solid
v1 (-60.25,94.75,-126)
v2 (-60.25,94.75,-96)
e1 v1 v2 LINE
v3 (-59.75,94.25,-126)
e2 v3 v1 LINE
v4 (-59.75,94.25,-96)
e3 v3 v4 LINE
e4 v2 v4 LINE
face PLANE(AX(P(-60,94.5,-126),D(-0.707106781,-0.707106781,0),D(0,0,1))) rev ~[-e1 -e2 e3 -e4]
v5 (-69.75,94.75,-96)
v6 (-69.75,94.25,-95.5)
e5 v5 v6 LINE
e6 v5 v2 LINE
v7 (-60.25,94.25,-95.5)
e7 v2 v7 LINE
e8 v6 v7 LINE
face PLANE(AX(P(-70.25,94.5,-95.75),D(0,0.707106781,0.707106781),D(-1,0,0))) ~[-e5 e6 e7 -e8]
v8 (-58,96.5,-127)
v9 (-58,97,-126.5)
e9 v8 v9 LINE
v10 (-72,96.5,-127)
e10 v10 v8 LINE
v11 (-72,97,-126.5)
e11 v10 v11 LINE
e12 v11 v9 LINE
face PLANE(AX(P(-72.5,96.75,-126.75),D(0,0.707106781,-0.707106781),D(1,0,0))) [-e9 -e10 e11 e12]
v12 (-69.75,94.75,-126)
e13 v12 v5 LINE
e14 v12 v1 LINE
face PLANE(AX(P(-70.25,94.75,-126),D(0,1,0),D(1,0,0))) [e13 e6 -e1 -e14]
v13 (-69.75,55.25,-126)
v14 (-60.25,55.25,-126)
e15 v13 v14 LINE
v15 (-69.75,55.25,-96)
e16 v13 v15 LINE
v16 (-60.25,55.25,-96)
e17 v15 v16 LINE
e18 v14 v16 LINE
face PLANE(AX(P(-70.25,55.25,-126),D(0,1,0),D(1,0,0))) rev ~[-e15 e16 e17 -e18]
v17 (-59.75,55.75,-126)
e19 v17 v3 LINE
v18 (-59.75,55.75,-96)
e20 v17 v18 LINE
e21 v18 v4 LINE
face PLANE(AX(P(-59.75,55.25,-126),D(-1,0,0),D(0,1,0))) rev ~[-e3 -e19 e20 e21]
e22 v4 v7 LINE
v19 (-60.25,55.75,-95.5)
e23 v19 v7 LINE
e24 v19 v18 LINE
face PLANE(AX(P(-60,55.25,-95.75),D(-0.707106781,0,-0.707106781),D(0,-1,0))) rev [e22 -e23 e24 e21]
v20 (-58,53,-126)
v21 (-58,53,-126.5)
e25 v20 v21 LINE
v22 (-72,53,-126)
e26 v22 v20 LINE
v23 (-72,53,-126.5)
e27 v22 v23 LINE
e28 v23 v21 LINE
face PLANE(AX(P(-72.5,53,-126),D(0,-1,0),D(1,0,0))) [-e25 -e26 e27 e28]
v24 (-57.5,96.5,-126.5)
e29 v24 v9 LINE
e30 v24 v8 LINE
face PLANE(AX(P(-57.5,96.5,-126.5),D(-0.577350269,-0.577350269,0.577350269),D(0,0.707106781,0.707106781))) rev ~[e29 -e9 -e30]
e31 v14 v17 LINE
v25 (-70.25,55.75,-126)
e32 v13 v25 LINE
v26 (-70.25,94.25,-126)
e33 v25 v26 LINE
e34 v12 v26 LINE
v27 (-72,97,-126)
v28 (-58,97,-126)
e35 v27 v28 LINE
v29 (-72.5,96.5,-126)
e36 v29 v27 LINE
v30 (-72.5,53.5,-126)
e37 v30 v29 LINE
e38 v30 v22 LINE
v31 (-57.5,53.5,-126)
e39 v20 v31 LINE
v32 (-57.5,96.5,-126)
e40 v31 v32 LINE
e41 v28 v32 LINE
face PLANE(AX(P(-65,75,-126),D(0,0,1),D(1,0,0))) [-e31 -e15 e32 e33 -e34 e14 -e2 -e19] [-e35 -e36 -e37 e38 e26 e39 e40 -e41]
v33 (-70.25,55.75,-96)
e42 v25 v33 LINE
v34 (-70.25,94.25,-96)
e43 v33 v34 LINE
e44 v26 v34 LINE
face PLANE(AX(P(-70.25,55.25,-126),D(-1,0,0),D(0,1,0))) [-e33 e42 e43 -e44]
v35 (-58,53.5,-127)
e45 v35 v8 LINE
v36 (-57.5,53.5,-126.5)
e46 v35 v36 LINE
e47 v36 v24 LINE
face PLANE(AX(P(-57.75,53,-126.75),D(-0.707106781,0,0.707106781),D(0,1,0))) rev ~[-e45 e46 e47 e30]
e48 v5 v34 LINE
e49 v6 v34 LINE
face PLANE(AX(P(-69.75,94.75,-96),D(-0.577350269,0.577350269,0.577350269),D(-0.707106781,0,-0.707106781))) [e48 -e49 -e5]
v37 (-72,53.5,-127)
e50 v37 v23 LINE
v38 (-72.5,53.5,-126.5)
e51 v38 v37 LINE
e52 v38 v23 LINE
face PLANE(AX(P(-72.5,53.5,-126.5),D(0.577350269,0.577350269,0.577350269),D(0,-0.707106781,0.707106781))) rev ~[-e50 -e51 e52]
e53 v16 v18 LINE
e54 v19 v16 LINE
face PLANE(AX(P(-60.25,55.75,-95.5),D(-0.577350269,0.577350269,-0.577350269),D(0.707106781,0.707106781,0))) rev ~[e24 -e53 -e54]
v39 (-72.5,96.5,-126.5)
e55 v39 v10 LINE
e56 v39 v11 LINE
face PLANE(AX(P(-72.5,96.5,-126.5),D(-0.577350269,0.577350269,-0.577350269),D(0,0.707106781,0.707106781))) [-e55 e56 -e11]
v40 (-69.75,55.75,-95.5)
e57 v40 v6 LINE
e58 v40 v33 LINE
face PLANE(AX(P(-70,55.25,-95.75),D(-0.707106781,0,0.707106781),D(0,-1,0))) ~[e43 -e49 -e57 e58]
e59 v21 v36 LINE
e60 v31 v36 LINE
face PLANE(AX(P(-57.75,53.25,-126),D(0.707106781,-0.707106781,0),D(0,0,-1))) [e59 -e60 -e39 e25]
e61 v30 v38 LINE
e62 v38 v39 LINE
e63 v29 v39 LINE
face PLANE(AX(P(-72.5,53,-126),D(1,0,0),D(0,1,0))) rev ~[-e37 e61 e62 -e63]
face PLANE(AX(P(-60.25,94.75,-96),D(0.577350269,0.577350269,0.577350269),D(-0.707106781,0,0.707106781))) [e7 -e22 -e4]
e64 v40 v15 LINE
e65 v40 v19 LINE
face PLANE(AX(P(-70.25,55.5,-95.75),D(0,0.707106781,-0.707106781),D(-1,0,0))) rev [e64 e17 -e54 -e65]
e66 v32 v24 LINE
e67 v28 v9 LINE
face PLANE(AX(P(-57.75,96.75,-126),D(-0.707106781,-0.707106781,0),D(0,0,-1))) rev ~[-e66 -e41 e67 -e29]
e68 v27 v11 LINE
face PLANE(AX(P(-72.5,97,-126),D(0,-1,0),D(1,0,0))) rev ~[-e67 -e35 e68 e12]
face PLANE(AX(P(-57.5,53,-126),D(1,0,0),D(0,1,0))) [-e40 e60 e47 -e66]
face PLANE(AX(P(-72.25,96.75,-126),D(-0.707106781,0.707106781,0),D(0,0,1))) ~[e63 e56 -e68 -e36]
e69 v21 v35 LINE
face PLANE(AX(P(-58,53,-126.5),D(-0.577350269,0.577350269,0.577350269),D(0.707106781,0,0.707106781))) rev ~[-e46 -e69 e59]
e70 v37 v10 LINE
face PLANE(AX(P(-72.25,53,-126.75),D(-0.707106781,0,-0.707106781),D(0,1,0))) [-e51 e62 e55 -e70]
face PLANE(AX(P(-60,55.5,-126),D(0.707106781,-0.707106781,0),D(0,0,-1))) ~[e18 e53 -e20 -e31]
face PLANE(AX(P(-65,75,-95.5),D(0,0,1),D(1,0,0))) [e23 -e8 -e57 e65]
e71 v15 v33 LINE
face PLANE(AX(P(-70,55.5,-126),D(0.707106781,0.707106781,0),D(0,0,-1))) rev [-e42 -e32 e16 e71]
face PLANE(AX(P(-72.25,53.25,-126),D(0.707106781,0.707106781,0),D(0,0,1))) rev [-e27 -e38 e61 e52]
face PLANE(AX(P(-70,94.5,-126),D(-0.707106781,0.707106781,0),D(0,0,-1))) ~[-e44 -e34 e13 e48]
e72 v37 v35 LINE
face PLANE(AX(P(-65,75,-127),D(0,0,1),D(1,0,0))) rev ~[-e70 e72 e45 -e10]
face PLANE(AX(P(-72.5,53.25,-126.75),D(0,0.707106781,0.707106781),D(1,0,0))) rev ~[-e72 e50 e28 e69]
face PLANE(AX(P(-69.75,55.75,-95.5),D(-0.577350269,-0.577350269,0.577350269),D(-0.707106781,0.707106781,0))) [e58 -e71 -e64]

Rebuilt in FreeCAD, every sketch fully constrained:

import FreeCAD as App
import Part
import Sketcher

V = App.Vector


def edges_at(feature, points):
    """Names of the edges that pass closest to the given points."""
    edges = feature.Shape.Edges
    near = lambda p: min(range(len(edges)), key=lambda i: edges[i].distToShape(Part.Vertex(*p))[0])
    return sorted({f"Edge{near(p) + 1}" for p in points})


def add_polygon(sketch, points):
    """Adds a closed chain of lines whose ends are joined by coincident constraints."""
    first, n = sketch.GeometryCount, len(points)
    for a, b in zip(points, points[1:] + points[:1]):
        sketch.addGeometry(Part.LineSegment(App.Vector(*a, 0), App.Vector(*b, 0)), False)
    for i in range(n):
        sketch.addConstraint(Sketcher.Constraint("Coincident", first + i, 2, first + (i + 1) % n, 1))

doc = App.newDocument("Part")
body = doc.addObject("PartDesign::Body", "Body")

sketch1 = body.newObject("Sketcher::SketchObject", "Sketch")
sketch1.AttachmentSupport = (doc.getObject("XY_Plane"), [""])
sketch1.MapMode = "FlatFace"
add_polygon(sketch1, [(-8, 22), (-8, -22), (8, -22), (8, 22)])
sketch1.addConstraint([
    Sketcher.Constraint("Vertical", 0),
    Sketcher.Constraint("Horizontal", 1),
    Sketcher.Constraint("Vertical", 2),
    Sketcher.Constraint("Horizontal", 3),
    Sketcher.Constraint("Symmetric", 0, 2, 2, 2, -1, 1),
    Sketcher.Constraint("DistanceX", 1, 1, 1, 2, 15.0),
    Sketcher.Constraint("DistanceY", 0, 2, 0, 1, 44.0),
])
pad1 = body.newObject("PartDesign::Pad", "Pad")
pad1.Profile = sketch1
pad1.Length = 1
pad1.Reversed = True

sketch2 = body.newObject("Sketcher::SketchObject", "Sketch001")
sketch2.AttachmentSupport = (doc.getObject("XY_Plane"), [""])
sketch2.MapMode = "FlatFace"
add_polygon(sketch2, [(-5, 20), (-5, -20), (5, -20), (5, 20)])
sketch2.addConstraint([
    Sketcher.Constraint("Vertical", 0),
    Sketcher.Constraint("Horizontal", 1),
    Sketcher.Constraint("Vertical", 2),
    Sketcher.Constraint("Horizontal", 3),
    Sketcher.Constraint("Symmetric", 0, 2, 2, 2, -1, 1),
    Sketcher.Constraint("DistanceX", 1, 1, 1, 2, 10.5),
    Sketcher.Constraint("DistanceY", 0, 2, 0, 1, 39.5),
])
pad2 = body.newObject("PartDesign::Pad", "Pad001")
pad2.Profile = sketch2
pad2.Length = 30.5
doc.recompute()

chamfer = body.newObject("PartDesign::Chamfer", "Chamfer")
chamfer.Base = (pad2, edges_at(pad2, [
    (-5.25, -19.75, 15.25),
    (5.25, -19.75, 15.25),
    (0, -19.75, 30.5),
    (-5.25, 0, 30.5),
    (5.25, 0, 30.5),
    (5.25, 19.75, 15.25),
    (0, 19.75, 30.5),
    (-5.25, 19.75, 15.25),
]))
chamfer.Size = 0.5
doc.recompute()

chamfer2 = body.newObject("PartDesign::Chamfer", "Chamfer001")
chamfer2.Base = (chamfer, edges_at(chamfer, [
    (0, 22, -1),
    (7.5, 0, -1),
    (0, -22, -1),
    (-7.5, 0, -1),
    (-7.5, -22, -0.5),
    (7.5, -22, -0.5),
    (7.5, 22, -0.5),
    (-7.5, 22, -0.5),
]))
chamfer2.Size = 0.5
body2 = doc.addObject("PartDesign::Body", "Body001")
doc.recompute()

body.Placement = App.Placement(V(-65, 75, -126), App.Rotation(V(0, 0, 1), 0))
boolean = body2.newObject("PartDesign::Boolean", "Boolean")
boolean.Type = "Fuse"
boolean.addObjects([body])

doc.recompute()
